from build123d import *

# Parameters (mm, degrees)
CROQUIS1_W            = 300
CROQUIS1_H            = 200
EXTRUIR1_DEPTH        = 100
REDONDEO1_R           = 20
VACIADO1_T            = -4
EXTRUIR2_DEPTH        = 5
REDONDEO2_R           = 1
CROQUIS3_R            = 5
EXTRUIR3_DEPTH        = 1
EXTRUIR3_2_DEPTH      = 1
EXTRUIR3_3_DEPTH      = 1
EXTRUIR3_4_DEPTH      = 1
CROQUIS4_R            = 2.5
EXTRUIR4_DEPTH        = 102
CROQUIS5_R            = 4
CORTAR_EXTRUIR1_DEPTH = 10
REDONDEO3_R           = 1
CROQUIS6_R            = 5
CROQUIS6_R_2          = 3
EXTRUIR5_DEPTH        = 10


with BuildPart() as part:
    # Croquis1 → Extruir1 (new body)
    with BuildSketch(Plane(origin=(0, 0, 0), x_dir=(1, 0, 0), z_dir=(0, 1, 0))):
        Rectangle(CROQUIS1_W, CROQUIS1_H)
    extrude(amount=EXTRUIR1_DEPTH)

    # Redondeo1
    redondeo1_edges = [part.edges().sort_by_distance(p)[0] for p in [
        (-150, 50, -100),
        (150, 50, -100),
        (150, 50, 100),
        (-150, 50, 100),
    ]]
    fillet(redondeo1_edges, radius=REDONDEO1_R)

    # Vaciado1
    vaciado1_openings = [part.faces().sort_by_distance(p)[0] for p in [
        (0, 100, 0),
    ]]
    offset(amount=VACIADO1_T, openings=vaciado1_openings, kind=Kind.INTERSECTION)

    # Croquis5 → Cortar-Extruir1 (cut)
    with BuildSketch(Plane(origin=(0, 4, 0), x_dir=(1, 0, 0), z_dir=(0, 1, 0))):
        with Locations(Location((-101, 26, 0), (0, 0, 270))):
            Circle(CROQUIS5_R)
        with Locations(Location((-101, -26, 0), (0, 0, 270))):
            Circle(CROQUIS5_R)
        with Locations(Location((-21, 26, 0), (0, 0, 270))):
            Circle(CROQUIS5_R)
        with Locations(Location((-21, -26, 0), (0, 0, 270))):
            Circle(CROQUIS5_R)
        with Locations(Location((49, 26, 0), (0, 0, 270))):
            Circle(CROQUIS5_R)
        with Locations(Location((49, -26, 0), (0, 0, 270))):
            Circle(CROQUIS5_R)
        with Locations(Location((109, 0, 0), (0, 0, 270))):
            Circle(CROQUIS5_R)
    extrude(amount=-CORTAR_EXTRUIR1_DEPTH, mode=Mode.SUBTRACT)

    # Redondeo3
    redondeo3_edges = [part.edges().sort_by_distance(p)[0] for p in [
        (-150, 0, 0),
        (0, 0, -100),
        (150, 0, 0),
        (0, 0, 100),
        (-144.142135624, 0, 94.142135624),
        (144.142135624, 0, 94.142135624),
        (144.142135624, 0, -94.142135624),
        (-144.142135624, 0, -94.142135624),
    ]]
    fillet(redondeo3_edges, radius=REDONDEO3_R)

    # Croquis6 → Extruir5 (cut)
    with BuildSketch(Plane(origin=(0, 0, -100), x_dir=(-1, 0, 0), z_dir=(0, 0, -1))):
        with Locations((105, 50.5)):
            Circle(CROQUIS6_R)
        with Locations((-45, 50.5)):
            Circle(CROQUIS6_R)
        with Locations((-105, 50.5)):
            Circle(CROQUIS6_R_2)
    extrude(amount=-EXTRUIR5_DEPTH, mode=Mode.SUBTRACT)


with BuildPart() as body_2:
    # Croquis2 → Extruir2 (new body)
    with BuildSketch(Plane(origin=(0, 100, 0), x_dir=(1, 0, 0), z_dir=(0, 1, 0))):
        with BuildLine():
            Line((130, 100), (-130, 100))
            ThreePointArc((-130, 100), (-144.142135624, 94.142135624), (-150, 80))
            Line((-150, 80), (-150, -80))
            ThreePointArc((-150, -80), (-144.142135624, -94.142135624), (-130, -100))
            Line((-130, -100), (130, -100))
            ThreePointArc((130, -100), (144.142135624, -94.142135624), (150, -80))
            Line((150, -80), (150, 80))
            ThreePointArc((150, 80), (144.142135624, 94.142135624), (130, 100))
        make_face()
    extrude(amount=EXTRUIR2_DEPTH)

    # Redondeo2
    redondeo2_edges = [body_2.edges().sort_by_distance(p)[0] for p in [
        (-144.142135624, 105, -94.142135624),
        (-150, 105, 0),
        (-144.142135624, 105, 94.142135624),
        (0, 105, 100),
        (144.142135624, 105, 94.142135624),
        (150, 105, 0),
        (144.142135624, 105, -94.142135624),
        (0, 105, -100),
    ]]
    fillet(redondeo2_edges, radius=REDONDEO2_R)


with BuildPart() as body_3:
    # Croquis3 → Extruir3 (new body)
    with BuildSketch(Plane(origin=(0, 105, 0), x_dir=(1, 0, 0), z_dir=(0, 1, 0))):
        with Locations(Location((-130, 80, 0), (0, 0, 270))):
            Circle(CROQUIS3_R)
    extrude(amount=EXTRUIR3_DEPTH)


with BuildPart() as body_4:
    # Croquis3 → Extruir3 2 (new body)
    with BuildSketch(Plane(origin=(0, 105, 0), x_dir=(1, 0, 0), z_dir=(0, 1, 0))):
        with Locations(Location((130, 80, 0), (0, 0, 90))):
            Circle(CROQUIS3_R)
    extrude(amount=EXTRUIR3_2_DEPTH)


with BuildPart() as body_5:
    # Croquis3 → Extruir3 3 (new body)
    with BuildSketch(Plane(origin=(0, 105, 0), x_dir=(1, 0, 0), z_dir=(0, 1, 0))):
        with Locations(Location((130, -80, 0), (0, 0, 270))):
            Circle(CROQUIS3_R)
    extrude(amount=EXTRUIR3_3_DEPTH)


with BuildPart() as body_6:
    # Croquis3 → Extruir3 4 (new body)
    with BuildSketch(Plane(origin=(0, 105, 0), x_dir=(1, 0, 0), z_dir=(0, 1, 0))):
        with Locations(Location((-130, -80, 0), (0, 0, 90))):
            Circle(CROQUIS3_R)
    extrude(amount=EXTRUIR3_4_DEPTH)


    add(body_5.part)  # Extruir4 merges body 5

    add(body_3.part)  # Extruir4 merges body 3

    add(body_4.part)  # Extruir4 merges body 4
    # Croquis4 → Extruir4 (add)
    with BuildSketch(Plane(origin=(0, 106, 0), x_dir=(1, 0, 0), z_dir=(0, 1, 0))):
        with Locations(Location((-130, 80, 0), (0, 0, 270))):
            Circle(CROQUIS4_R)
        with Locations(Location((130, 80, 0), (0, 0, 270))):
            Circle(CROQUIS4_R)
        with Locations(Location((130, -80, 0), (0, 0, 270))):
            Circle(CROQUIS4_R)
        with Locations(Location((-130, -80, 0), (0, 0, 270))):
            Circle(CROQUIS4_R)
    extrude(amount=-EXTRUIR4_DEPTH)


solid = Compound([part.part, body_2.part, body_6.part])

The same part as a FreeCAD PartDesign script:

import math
import FreeCAD as App
import Part
import Sketcher
from FreeCAD import Vector
Q = App.Units.Quantity


def edges_at(feature, points):
    """Names of the edges that pass closest to the given points."""
    edges = feature.Shape.Edges
    near = lambda p: min(range(len(edges)), key=lambda i: edges[i].distToShape(Part.Vertex(*p))[0])
    return sorted({f"Edge{near(p) + 1}" for p in points})


def faces_at(feature, points):
    """Names of the faces that lie closest to the given points."""
    faces = feature.Shape.Faces
    near = lambda p: min(range(len(faces)), key=lambda i: faces[i].distToShape(Part.Vertex(*p))[0])
    return sorted({f"Face{near(p) + 1}" for p in points})

doc = App.newDocument("Part")
body = doc.addObject("PartDesign::Body", "Body")

# Sketch on XZ plane
sketch1 = body.newObject("Sketcher::SketchObject", "Sketch")
sketch1.AttachmentSupport = (doc.getObject("XZ_Plane"), [""])
sketch1.MapMode = "FlatFace"
sketch1.addGeometry([
    Part.LineSegment(Vector(-150, -100, 0), Vector(-150, 100, 0)),
    Part.LineSegment(Vector(-150, 100, 0), Vector(150, 100, 0)),
    Part.LineSegment(Vector(150, 100, 0), Vector(150, -100, 0)),
    Part.LineSegment(Vector(150, -100, 0), Vector(-150, -100, 0)),
], False)
sketch1.addConstraint([
    Sketcher.Constraint("Coincident", 0, 2, 1, 1),
    Sketcher.Constraint("Coincident", 1, 2, 2, 1),
    Sketcher.Constraint("Coincident", 2, 2, 3, 1),
    Sketcher.Constraint("Coincident", 3, 2, 0, 1),
    Sketcher.Constraint("Vertical", 0),
    Sketcher.Constraint("Horizontal", 1),
    Sketcher.Constraint("Vertical", 2),
    Sketcher.Constraint("Horizontal", 3),
    Sketcher.Constraint("Symmetric", 0, 2, 2, 2, -1, 1),
    Sketcher.Constraint("DistanceX", 1, 1, 1, 2, Q("300 mm")),
    Sketcher.Constraint("DistanceY", 0, 1, 0, 2, Q("200 mm")),
])
pad1 = body.newObject("PartDesign::Pad", "Pad")
pad1.Profile = sketch1
pad1.Length = 100
pad1.Reversed = True
doc.recompute()

fillet = body.newObject("PartDesign::Fillet", "Fillet")
fillet.Base = (pad1, edges_at(pad1, [
    (-150, 50, -100),
    (150, 50, -100),
    (150, 50, 100),
    (-150, 50, 100),
]))
fillet.Radius = 20
doc.recompute()

thickness = body.newObject("PartDesign::Thickness", "Thickness")
thickness.Base = (fillet, faces_at(fillet, [(0, 100, 0)]))
thickness.Value = 4
thickness.Reversed = True
thickness.Join = "Intersection"

# Sketch on XZ plane
sketch2 = body.newObject("Sketcher::SketchObject", "Sketch001")
sketch2.AttachmentSupport = (doc.getObject("XZ_Plane"), [""])
sketch2.MapMode = "FlatFace"
sketch2.AttachmentOffset = App.Placement(Vector(0, 0, -4), App.Rotation())
sketch2.addGeometry([
    Part.Circle(Vector(-101, -26, 0), Vector(0, 0, 1), 4),  # 0
    Part.Circle(Vector(-101, 26, 0), Vector(0, 0, 1), 4),  # 1
    Part.Circle(Vector(-21, -26, 0), Vector(0, 0, 1), 4),  # 2
    Part.Circle(Vector(-21, 26, 0), Vector(0, 0, 1), 4),  # 3
    Part.Circle(Vector(49, -26, 0), Vector(0, 0, 1), 4),  # 4
    Part.Circle(Vector(49, 26, 0), Vector(0, 0, 1), 4),  # 5
    Part.Circle(Vector(109, 0, 0), Vector(0, 0, 1), 4),  # 6
], False)
sketch2.addConstraint([
    Sketcher.Constraint("Equal", 0, 1),
    Sketcher.Constraint("Equal", 1, 2),
    Sketcher.Constraint("Equal", 2, 3),
    Sketcher.Constraint("Equal", 3, 4),
    Sketcher.Constraint("Equal", 4, 5),
    Sketcher.Constraint("Equal", 5, 6),
    Sketcher.Constraint("Symmetric", 0, 3, 1, 3, -1),
    Sketcher.Constraint("Symmetric", 2, 3, 3, 3, -1),
    Sketcher.Constraint("Symmetric", 4, 3, 5, 3, -1),
    Sketcher.Constraint("PointOnObject", 6, 3, -1),
    Sketcher.Constraint("Horizontal", 0, 3, 2, 3),
    Sketcher.Constraint("Horizontal", 2, 3, 4, 3),
    Sketcher.Constraint("Diameter", 0, Q("8 mm")),
    Sketcher.Constraint("DistanceX", 0, 3, -1, 1, Q("101 mm")),
    Sketcher.Constraint("DistanceY", 0, 3, -1, 1, Q("26 mm")),
    Sketcher.Constraint("DistanceX", 2, 3, -1, 1, Q("21 mm")),
    Sketcher.Constraint("DistanceX", -1, 1, 4, 3, Q("49 mm")),
    Sketcher.Constraint("DistanceX", -1, 1, 6, 3, Q("109 mm")),
])
pocket1 = body.newObject("PartDesign::Pocket", "Pocket")
pocket1.Profile = sketch2
pocket1.Length = 10
pocket1.Reversed = True
doc.recompute()

fillet2 = body.newObject("PartDesign::Fillet", "Fillet001")
fillet2.Base = (pocket1, edges_at(pocket1, [
    (-150, 0, 0),
    (0, 0, -100),
    (150, 0, 0),
    (0, 0, 100),
    (-144.142, 0, 94.142),
    (144.142, 0, 94.142),
    (144.142, 0, -94.142),
    (-144.142, 0, -94.142),
]))
fillet2.Radius = 1

# Sketch on XY plane
sketch3 = body.newObject("Sketcher::SketchObject", "Sketch002")
sketch3.AttachmentSupport = (doc.getObject("XY_Plane"), [""])
sketch3.MapMode = "FlatFace"
sketch3.AttachmentOffset = App.Placement(Vector(0, 0, -100), App.Rotation())
sketch3.addGeometry([
    Part.Circle(Vector(-105, 50.5, 0), Vector(0, 0, 1), 5),
    Part.Circle(Vector(45, 50.5, 0), Vector(0, 0, 1), 5),
    Part.Circle(Vector(105, 50.5, 0), Vector(0, 0, 1), 3),
], False)
sketch3.addConstraint([
    Sketcher.Constraint("Equal", 0, 1),
    Sketcher.Constraint("Symmetric", 0, 3, 2, 3, -2),
    Sketcher.Constraint("Horizontal", 0, 3, 1, 3),
    Sketcher.Constraint("Diameter", 0, Q("10 mm")),
    Sketcher.Constraint("Diameter", 2, Q("6 mm")),
    Sketcher.Constraint("DistanceX", 0, 3, -1, 1, Q("105 mm")),
    Sketcher.Constraint("DistanceX", -1, 1, 1, 3, Q("45 mm")),
    Sketcher.Constraint("DistanceY", -1, 1, 0, 3, Q("50.5 mm")),
])
pocket2 = body.newObject("PartDesign::Pocket", "Pocket001")
pocket2.Profile = sketch3
pocket2.Length = 10
pocket2.Reversed = True
body2 = doc.addObject("PartDesign::Body", "Body001")

# Sketch on XZ plane
sketch4 = body2.newObject("Sketcher::SketchObject", "Sketch003")
sketch4.AttachmentSupport = (doc.getObject("XZ_Plane001"), [""])
sketch4.MapMode = "FlatFace"
sketch4.AttachmentOffset = App.Placement(Vector(0, 0, -100), App.Rotation())
sketch4.addGeometry([
    Part.LineSegment(Vector(130, -100, 0), Vector(-130, -100, 0)),  # 0
    Part.ArcOfCircle(Part.Circle(Vector(-130, -80, 0), Vector(0, 0, 1), 20), math.radians(180), math.radians(270)),  # 1
    Part.LineSegment(Vector(-150, -80, 0), Vector(-150, 80, 0)),  # 2
    Part.ArcOfCircle(Part.Circle(Vector(-130, 80, 0), Vector(0, 0, 1), 20), math.radians(90), math.radians(180)),  # 3
    Part.LineSegment(Vector(-130, 100, 0), Vector(130, 100, 0)),  # 4
    Part.ArcOfCircle(Part.Circle(Vector(130, 80, 0), Vector(0, 0, 1), 20), math.radians(0), math.radians(90)),  # 5
    Part.LineSegment(Vector(150, 80, 0), Vector(150, -80, 0)),  # 6
    Part.ArcOfCircle(Part.Circle(Vector(130, -80, 0), Vector(0, 0, 1), 20), math.radians(-90), math.radians(0)),  # 7
], False)
sketch4.addConstraint([
    Sketcher.Constraint("Tangent", 0, 2, 1, 2),
    Sketcher.Constraint("Tangent", 1, 1, 2, 1),
    Sketcher.Constraint("Tangent", 2, 2, 3, 2),
    Sketcher.Constraint("Tangent", 3, 1, 4, 1),
    Sketcher.Constraint("Tangent", 4, 2, 5, 2),
    Sketcher.Constraint("Tangent", 5, 1, 6, 1),
    Sketcher.Constraint("Tangent", 6, 2, 7, 2),
    Sketcher.Constraint("Tangent", 7, 1, 0, 1),
    Sketcher.Constraint("Horizontal", 0),
    Sketcher.Constraint("Vertical", 2),
    Sketcher.Constraint("Horizontal", 4),
    Sketcher.Constraint("Vertical", 6),
    Sketcher.Constraint("Equal", 1, 3),
    Sketcher.Constraint("Equal", 3, 5),
    Sketcher.Constraint("Equal", 5, 7),
    Sketcher.Constraint("Symmetric", 1, 3, 5, 3, -1, 1),
    Sketcher.Constraint("Radius", 1, Q("20 mm")),
    Sketcher.Constraint("DistanceX", 0, 2, 0, 1, Q("260 mm")),
    Sketcher.Constraint("DistanceY", 2, 1, 2, 2, Q("160 mm")),
])
pad2 = body2.newObject("PartDesign::Pad", "Pad001")
pad2.Profile = sketch4
pad2.Length = 5
pad2.Reversed = True
doc.recompute()

fillet3 = body2.newObject("PartDesign::Fillet", "Fillet002")
fillet3.Base = (pad2, edges_at(pad2, [
    (-144.142, 105, -94.142),
    (-150, 105, 0),
    (-144.142, 105, 94.142),
    (0, 105, 100),
    (144.142, 105, 94.142),
    (150, 105, 0),
    (144.142, 105, -94.142),
    (0, 105, -100),
]))
fillet3.Radius = 1
body3 = doc.addObject("PartDesign::Body", "Body002")

# Sketch on XZ plane
sketch5 = body3.newObject("Sketcher::SketchObject", "Sketch004")
sketch5.AttachmentSupport = (doc.getObject("XZ_Plane002"), [""])
sketch5.MapMode = "FlatFace"
sketch5.AttachmentOffset = App.Placement(Vector(0, 0, -105), App.Rotation())
sketch5.addGeometry(Part.Circle(Vector(-130, -80, 0), Vector(0, 0, 1), 5), False)
sketch5.addConstraint([
    Sketcher.Constraint("Diameter", 0, Q("10 mm")),
    Sketcher.Constraint("DistanceX", 0, 3, -1, 1, Q("130 mm")),
    Sketcher.Constraint("DistanceY", 0, 3, -1, 1, Q("80 mm")),
])
pad3 = body3.newObject("PartDesign::Pad", "Pad002")
pad3.Profile = sketch5
pad3.Length = 1
pad3.Reversed = True
body4 = doc.addObject("PartDesign::Body", "Body003")

# Sketch on XZ plane
sketch6 = body4.newObject("Sketcher::SketchObject", "Sketch005")
sketch6.AttachmentSupport = (doc.getObject("XZ_Plane003"), [""])
sketch6.MapMode = "FlatFace"
sketch6.AttachmentOffset = App.Placement(Vector(0, 0, -105), App.Rotation())
sketch6.addGeometry(Part.Circle(Vector(130, -80, 0), Vector(0, 0, 1), 5), False)
sketch6.addConstraint([
    Sketcher.Constraint("Diameter", 0, Q("10 mm")),
    Sketcher.Constraint("DistanceX", -1, 1, 0, 3, Q("130 mm")),
    Sketcher.Constraint("DistanceY", 0, 3, -1, 1, Q("80 mm")),
])
pad4 = body4.newObject("PartDesign::Pad", "Pad003")
pad4.Profile = sketch6
pad4.Length = 1
pad4.Reversed = True
body5 = doc.addObject("PartDesign::Body", "Body004")

# Sketch on XZ plane
sketch7 = body5.newObject("Sketcher::SketchObject", "Sketch006")
sketch7.AttachmentSupport = (doc.getObject("XZ_Plane004"), [""])
sketch7.MapMode = "FlatFace"
sketch7.AttachmentOffset = App.Placement(Vector(0, 0, -105), App.Rotation())
sketch7.addGeometry(Part.Circle(Vector(130, 80, 0), Vector(0, 0, 1), 5), False)
sketch7.addConstraint([
    Sketcher.Constraint("Diameter", 0, Q("10 mm")),
    Sketcher.Constraint("DistanceX", -1, 1, 0, 3, Q("130 mm")),
    Sketcher.Constraint("DistanceY", -1, 1, 0, 3, Q("80 mm")),
])
pad5 = body5.newObject("PartDesign::Pad", "Pad004")
pad5.Profile = sketch7
pad5.Length = 1
pad5.Reversed = True
body6 = doc.addObject("PartDesign::Body", "Body005")
body6.AllowCompound = True

# Sketch on XZ plane
sketch8 = body6.newObject("Sketcher::SketchObject", "Sketch007")
sketch8.AttachmentSupport = (doc.getObject("XZ_Plane005"), [""])
sketch8.MapMode = "FlatFace"
sketch8.AttachmentOffset = App.Placement(Vector(0, 0, -105), App.Rotation())
sketch8.addGeometry(Part.Circle(Vector(-130, 80, 0), Vector(0, 0, 1), 5), False)
sketch8.addConstraint([
    Sketcher.Constraint("Diameter", 0, Q("10 mm")),
    Sketcher.Constraint("DistanceX", 0, 3, -1, 1, Q("130 mm")),
    Sketcher.Constraint("DistanceY", -1, 1, 0, 3, Q("80 mm")),
])
pad6 = body6.newObject("PartDesign::Pad", "Pad005")
pad6.Profile = sketch8
pad6.Length = 1
pad6.Reversed = True
doc.recompute()

boolean = body6.newObject("PartDesign::Boolean", "Boolean")
boolean.Type = "Fuse"
boolean.addObjects([body5])
doc.recompute()

boolean2 = body6.newObject("PartDesign::Boolean", "Boolean001")
boolean2.Type = "Fuse"
boolean2.addObjects([body3])
doc.recompute()

boolean3 = body6.newObject("PartDesign::Boolean", "Boolean002")
boolean3.Type = "Fuse"
boolean3.addObjects([body4])

# Sketch on XZ plane
sketch9 = body6.newObject("Sketcher::SketchObject", "Sketch008")
sketch9.AttachmentSupport = (doc.getObject("XZ_Plane005"), [""])
sketch9.MapMode = "FlatFace"
sketch9.AttachmentOffset = App.Placement(Vector(0, 0, -106), App.Rotation())
sketch9.addGeometry([
    Part.Circle(Vector(-130, -80, 0), Vector(0, 0, 1), 2.5),
    Part.Circle(Vector(130, -80, 0), Vector(0, 0, 1), 2.5),
    Part.Circle(Vector(130, 80, 0), Vector(0, 0, 1), 2.5),
    Part.Circle(Vector(-130, 80, 0), Vector(0, 0, 1), 2.5),
], False)
sketch9.addConstraint([
    Sketcher.Constraint("Equal", 0, 1),
    Sketcher.Constraint("Equal", 1, 2),
    Sketcher.Constraint("Equal", 2, 3),
    Sketcher.Constraint("Symmetric", 0, 3, 2, 3, -1, 1),
    Sketcher.Constraint("Symmetric", 1, 3, 3, 3, -1, 1),
    Sketcher.Constraint("Symmetric", 0, 3, 1, 3, -2),
    Sketcher.Constraint("Diameter", 0, Q("5 mm")),
    Sketcher.Constraint("DistanceX", 0, 3, -1, 1, Q("130 mm")),
    Sketcher.Constraint("DistanceY", 0, 3, -1, 1, Q("80 mm")),
])
pad7 = body6.newObject("PartDesign::Pad", "Pad006")
pad7.Profile = sketch9
pad7.Length = 102

doc.recompute()
